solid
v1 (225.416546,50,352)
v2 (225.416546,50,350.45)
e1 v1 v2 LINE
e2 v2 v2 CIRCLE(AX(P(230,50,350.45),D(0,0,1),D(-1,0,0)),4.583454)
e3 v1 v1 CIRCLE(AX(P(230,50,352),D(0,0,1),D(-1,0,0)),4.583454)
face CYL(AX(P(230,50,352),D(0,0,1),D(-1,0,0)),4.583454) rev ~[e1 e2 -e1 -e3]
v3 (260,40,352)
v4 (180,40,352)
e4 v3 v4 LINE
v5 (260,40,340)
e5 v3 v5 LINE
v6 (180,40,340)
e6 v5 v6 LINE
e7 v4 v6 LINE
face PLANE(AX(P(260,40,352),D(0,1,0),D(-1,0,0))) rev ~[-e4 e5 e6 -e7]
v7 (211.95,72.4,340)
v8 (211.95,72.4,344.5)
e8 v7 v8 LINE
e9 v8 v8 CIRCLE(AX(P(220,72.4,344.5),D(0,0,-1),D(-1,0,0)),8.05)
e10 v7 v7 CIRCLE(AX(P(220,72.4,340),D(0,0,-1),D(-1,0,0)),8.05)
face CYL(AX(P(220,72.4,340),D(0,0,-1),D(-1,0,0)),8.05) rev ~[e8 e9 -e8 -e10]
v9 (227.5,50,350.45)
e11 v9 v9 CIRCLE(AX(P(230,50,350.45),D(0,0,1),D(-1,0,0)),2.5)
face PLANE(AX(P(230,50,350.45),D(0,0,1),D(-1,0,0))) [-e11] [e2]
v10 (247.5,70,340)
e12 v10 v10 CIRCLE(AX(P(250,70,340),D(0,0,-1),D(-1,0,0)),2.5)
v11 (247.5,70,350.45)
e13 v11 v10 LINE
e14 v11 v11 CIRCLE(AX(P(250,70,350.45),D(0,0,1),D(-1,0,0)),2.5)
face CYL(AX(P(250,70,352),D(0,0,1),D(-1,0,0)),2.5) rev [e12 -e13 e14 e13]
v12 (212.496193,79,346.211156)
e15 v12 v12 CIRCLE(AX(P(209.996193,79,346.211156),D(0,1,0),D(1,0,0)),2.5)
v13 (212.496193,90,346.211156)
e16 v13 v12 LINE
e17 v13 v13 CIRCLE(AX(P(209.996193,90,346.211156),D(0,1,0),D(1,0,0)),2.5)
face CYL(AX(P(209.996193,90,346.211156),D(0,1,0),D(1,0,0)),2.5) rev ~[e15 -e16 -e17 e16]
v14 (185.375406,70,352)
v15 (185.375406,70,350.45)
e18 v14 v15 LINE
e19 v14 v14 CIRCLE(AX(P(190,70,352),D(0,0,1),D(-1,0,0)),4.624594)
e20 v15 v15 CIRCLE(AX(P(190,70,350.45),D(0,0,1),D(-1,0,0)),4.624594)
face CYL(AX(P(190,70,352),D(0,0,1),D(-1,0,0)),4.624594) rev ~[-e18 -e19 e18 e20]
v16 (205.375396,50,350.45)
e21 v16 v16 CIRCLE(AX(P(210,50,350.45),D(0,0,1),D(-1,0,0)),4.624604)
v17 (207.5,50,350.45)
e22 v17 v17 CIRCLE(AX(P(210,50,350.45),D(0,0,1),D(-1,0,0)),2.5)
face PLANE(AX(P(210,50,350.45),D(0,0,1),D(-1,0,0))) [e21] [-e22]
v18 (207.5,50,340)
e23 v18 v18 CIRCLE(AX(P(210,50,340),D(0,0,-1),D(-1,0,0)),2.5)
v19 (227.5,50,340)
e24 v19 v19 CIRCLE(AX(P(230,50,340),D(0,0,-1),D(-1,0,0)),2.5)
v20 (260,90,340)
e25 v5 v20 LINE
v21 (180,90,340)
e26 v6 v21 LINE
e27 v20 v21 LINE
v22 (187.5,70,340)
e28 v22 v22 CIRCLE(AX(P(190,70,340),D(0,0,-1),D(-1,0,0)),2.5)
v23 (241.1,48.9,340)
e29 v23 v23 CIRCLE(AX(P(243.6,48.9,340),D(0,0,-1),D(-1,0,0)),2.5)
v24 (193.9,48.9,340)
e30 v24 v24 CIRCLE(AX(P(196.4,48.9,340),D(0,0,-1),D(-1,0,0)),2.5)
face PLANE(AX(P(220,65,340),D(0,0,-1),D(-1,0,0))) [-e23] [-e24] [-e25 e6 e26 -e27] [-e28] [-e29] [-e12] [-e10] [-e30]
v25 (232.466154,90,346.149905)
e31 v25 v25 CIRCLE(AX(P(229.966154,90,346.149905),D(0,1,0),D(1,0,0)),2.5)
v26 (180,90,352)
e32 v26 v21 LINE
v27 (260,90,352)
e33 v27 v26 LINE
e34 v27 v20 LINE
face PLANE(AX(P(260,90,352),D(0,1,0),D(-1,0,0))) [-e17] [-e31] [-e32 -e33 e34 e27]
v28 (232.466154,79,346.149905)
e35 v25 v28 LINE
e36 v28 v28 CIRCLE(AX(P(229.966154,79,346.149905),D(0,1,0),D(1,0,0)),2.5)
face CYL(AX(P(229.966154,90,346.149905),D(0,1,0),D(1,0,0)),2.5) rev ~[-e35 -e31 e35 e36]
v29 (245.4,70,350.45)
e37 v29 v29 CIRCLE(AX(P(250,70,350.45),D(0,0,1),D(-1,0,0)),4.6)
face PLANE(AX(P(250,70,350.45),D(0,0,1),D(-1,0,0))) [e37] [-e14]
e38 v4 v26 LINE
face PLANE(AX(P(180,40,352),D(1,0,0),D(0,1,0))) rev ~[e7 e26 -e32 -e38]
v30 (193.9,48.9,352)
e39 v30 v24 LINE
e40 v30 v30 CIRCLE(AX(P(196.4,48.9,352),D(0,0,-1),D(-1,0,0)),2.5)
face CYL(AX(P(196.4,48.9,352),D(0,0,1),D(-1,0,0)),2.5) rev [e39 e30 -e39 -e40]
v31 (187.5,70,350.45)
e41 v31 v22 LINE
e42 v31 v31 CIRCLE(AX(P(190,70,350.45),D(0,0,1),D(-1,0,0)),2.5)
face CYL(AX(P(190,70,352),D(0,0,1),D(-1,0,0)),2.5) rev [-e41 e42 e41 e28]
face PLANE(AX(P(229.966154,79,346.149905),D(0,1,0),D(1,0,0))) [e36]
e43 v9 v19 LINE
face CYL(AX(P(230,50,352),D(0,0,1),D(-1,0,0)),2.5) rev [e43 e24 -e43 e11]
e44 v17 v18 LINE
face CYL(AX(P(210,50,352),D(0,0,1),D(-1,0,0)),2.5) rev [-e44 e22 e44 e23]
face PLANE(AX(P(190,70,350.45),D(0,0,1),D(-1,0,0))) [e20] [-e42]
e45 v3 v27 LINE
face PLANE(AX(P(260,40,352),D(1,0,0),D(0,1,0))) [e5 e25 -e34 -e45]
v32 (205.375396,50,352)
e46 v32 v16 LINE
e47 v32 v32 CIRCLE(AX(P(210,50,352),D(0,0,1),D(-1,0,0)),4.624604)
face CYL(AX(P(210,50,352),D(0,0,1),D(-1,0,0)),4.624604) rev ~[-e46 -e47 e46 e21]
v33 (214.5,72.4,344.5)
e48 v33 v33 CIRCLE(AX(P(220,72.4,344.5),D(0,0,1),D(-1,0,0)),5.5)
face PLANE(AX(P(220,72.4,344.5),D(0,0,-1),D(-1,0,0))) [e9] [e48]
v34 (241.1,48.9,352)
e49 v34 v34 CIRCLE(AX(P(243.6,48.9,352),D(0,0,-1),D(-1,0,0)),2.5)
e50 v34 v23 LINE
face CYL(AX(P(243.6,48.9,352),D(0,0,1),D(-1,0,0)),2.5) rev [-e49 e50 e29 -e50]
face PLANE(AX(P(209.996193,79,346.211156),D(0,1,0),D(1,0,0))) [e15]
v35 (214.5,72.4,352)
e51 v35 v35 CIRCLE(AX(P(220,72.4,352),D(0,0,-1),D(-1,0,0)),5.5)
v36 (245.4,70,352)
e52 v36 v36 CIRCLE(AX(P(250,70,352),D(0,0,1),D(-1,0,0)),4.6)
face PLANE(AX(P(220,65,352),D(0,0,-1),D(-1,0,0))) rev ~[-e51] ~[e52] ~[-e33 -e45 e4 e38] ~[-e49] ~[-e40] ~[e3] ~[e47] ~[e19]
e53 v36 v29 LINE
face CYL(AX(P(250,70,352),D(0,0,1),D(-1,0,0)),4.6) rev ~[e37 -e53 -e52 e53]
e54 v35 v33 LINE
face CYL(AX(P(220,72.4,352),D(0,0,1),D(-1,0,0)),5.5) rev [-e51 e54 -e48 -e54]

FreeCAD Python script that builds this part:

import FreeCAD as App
import Part
import Sketcher

V = App.Vector
Q = App.Units.Quantity

doc = App.newDocument("Part")
body = doc.addObject("PartDesign::Body", "Body")

sketch1 = body.newObject("Sketcher::SketchObject", "Sketch")
sketch1.AttachmentSupport = (doc.getObject("XY_Plane"), [""])
sketch1.MapMode = "FlatFace"
sketch1.AttachmentOffset = App.Placement(V(0, 0, 352), App.Rotation())
sketch1.addGeometry(Part.LineSegment(V(260, 90, 0), V(260, 40, 0)), False)
sketch1.addGeometry(Part.LineSegment(V(260, 40, 0), V(180, 40, 0)), False)
sketch1.addGeometry(Part.LineSegment(V(180, 40, 0), V(180, 90, 0)), False)
sketch1.addGeometry(Part.LineSegment(V(180, 90, 0), V(260, 90, 0)), False)
sketch1.addGeometry(Part.Circle(V(243.6, 48.9, 0), V(0, 0, 1), 2.5), False)
sketch1.addGeometry(Part.Circle(V(230, 50, 0), V(0, 0, 1), 2.5), False)
sketch1.addGeometry(Part.Circle(V(210, 50, 0), V(0, 0, 1), 2.5), False)
sketch1.addGeometry(Part.Circle(V(196.4, 48.9, 0), V(0, 0, 1), 2.5), False)
sketch1.addGeometry(Part.Circle(V(250, 70, 0), V(0, 0, 1), 2.5), False)
sketch1.addGeometry(Part.Circle(V(190, 70, 0), V(0, 0, 1), 2.5), False)
sketch1.addGeometry(Part.Circle(V(220, 72.4, 0), V(0, 0, 1), 5.5), False)
sketch1.addConstraint(Sketcher.Constraint("Coincident", 0, 2, 1, 1))
sketch1.addConstraint(Sketcher.Constraint("Coincident", 1, 2, 2, 1))
sketch1.addConstraint(Sketcher.Constraint("Coincident", 2, 2, 3, 1))
sketch1.addConstraint(Sketcher.Constraint("Coincident", 3, 2, 0, 1))
sketch1.addConstraint(Sketcher.Constraint("Vertical", 0))
sketch1.addConstraint(Sketcher.Constraint("Horizontal", 1))
sketch1.addConstraint(Sketcher.Constraint("Vertical", 2))
sketch1.addConstraint(Sketcher.Constraint("Horizontal", 3))
sketch1.addConstraint(Sketcher.Constraint("Equal", 4, 5))
sketch1.addConstraint(Sketcher.Constraint("Equal", 5, 6))
sketch1.addConstraint(Sketcher.Constraint("Equal", 6, 7))
sketch1.addConstraint(Sketcher.Constraint("Equal", 7, 8))
sketch1.addConstraint(Sketcher.Constraint("Equal", 8, 9))
sketch1.addConstraint(Sketcher.Constraint("Horizontal", 5, 3, 6, 3))
sketch1.addConstraint(Sketcher.Constraint("Horizontal", 4, 3, 7, 3))
sketch1.addConstraint(Sketcher.Constraint("Horizontal", 8, 3, 9, 3))
sketch1.addConstraint(Sketcher.Constraint("Diameter", 4, Q("5 mm")))
sketch1.addConstraint(Sketcher.Constraint("Diameter", 10, Q("11 mm")))
sketch1.addConstraint(Sketcher.Constraint("DistanceX", 1, 2, 1, 1, Q("80 mm")))
sketch1.addConstraint(Sketcher.Constraint("DistanceY", 0, 2, 0, 1, Q("50 mm")))
sketch1.addConstraint(Sketcher.Constraint("DistanceX", -1, 1, 5, 3, Q("230 mm")))
sketch1.addConstraint(Sketcher.Constraint("DistanceY", -1, 1, 5, 3, Q("50 mm")))
sketch1.addConstraint(Sketcher.Constraint("DistanceX", -1, 1, 6, 3, Q("210 mm")))
sketch1.addConstraint(Sketcher.Constraint("DistanceX", -1, 1, 8, 3, Q("250 mm")))
sketch1.addConstraint(Sketcher.Constraint("DistanceY", -1, 1, 8, 3, Q("70 mm")))
sketch1.addConstraint(Sketcher.Constraint("DistanceX", -1, 1, 9, 3, Q("190 mm")))
sketch1.addConstraint(Sketcher.Constraint("DistanceX", -1, 1, 10, 3, Q("220 mm")))
sketch1.addConstraint(Sketcher.Constraint("DistanceX", -1, 1, 0, 2, Q("260 mm")))
sketch1.addConstraint(Sketcher.Constraint("DistanceY", -1, 1, 0, 2, Q("40 mm")))
sketch1.addConstraint(Sketcher.Constraint("DistanceX", -1, 1, 4, 3, Q("243.6 mm")))
sketch1.addConstraint(Sketcher.Constraint("DistanceY", -1, 1, 4, 3, Q("48.9 mm")))
sketch1.addConstraint(Sketcher.Constraint("DistanceX", -1, 1, 7, 3, Q("196.4 mm")))
sketch1.addConstraint(Sketcher.Constraint("DistanceY", -1, 1, 10, 3, Q("72.4 mm")))
pad1 = body.newObject("PartDesign::Pad", "Pad")
pad1.Profile = sketch1
pad1.Length = 12
pad1.Reversed = True

sketch2 = body.newObject("Sketcher::SketchObject", "Sketch001")
sketch2.AttachmentSupport = (doc.getObject("XZ_Plane"), [""])
sketch2.MapMode = "FlatFace"
sketch2.AttachmentOffset = App.Placement(V(0, 0, -90), App.Rotation())
sketch2.addGeometry(Part.Circle(V(230, 346.1, 0), V(0, 0, 1), 2.5), False)
sketch2.addGeometry(Part.Circle(V(210, 346.2, 0), V(0, 0, 1), 2.5), False)
sketch2.addConstraint(Sketcher.Constraint("Equal", 0, 1))
sketch2.addConstraint(Sketcher.Constraint("Diameter", 0, Q("5 mm")))
sketch2.addConstraint(Sketcher.Constraint("DistanceX", 1, 3, 0, 3, Q("19.969961 mm")))
sketch2.addConstraint(Sketcher.Constraint("DistanceY", 0, 3, 1, 3, Q("0.061251 mm")))
sketch2.addConstraint(Sketcher.Constraint("DistanceX", -1, 1, 0, 3, Q("229.966154 mm")))
sketch2.addConstraint(Sketcher.Constraint("DistanceY", -1, 1, 0, 3, Q("346.149905 mm")))
pocket1 = body.newObject("PartDesign::Pocket", "Pocket")
pocket1.Profile = sketch2
pocket1.Length = 11
pocket1.Reversed = True

sketch3 = body.newObject("Sketcher::SketchObject", "Sketch002")
sketch3.AttachmentSupport = (doc.getObject("XY_Plane"), [""])
sketch3.MapMode = "FlatFace"
sketch3.AttachmentOffset = App.Placement(V(0, 0, 340), App.Rotation())
sketch3.addGeometry(Part.Circle(V(220, 72, 0), V(0, 0, 1), 8), False)
sketch3.addConstraint(Sketcher.Constraint("Diameter", 0, Q("16.1 mm")))
sketch3.addConstraint(Sketcher.Constraint("DistanceX", -1, 1, 0, 3, Q("220 mm")))
sketch3.addConstraint(Sketcher.Constraint("DistanceY", -1, 1, 0, 3, Q("72.4 mm")))
pocket2 = body.newObject("PartDesign::Pocket", "Pocket001")
pocket2.Profile = sketch3
pocket2.Length = 4.5
pocket2.Reversed = True

sketch4 = body.newObject("Sketcher::SketchObject", "Sketch003")
sketch4.AttachmentSupport = (doc.getObject("XY_Plane"), [""])
sketch4.MapMode = "FlatFace"
sketch4.AttachmentOffset = App.Placement(V(0, 0, 352), App.Rotation())
sketch4.addGeometry(Part.Circle(V(250, 70, 0), V(0, 0, 1), 4.6), False)
sketch4.addGeometry(Part.Circle(V(190, 70, 0), V(0, 0, 1), 4.6), False)
sketch4.addGeometry(Part.Circle(V(230, 50, 0), V(0, 0, 1), 4.6), False)
sketch4.addGeometry(Part.Circle(V(210, 50, 0), V(0, 0, 1), 4.6), False)
sketch4.addConstraint(Sketcher.Constraint("Horizontal", 0, 3, 1, 3))
sketch4.addConstraint(Sketcher.Constraint("Horizontal", 2, 3, 3, 3))
sketch4.addConstraint(Sketcher.Constraint("Diameter", 0, Q("9.2 mm")))
sketch4.addConstraint(Sketcher.Constraint("DistanceX", -1, 1, 0, 3, Q("250 mm")))
sketch4.addConstraint(Sketcher.Constraint("DistanceY", -1, 1, 0, 3, Q("70 mm")))
sketch4.addConstraint(Sketcher.Constraint("DistanceX", -1, 1, 1, 3, Q("190 mm")))
sketch4.addConstraint(Sketcher.Constraint("DistanceX", -1, 1, 2, 3, Q("230 mm")))
sketch4.addConstraint(Sketcher.Constraint("DistanceY", -1, 1, 2, 3, Q("50 mm")))
sketch4.addConstraint(Sketcher.Constraint("DistanceX", -1, 1, 3, 3, Q("210 mm")))
sketch4.addConstraint(Sketcher.Constraint("Diameter", 1, Q("9.249188 mm")))
sketch4.addConstraint(Sketcher.Constraint("Diameter", 2, Q("9.166908 mm")))
sketch4.addConstraint(Sketcher.Constraint("Diameter", 3, Q("9.249208 mm")))
pocket3 = body.newObject("PartDesign::Pocket", "Pocket002")
pocket3.Profile = sketch4
pocket3.Length = 1.55

doc.recompute()
